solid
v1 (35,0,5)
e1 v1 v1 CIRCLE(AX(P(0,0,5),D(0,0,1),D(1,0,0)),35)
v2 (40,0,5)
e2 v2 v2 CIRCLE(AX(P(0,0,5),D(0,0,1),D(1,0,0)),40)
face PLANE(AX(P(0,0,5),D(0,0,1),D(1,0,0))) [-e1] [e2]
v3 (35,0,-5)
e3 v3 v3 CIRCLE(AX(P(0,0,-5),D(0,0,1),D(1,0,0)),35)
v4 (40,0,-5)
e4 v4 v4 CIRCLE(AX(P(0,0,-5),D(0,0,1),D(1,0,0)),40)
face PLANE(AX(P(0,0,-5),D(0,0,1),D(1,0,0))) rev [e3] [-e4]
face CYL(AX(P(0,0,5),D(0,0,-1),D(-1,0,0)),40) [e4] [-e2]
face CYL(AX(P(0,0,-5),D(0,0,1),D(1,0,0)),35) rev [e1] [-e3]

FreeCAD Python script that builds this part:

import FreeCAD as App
import Part
import Sketcher

doc = App.newDocument("Part")
body = doc.addObject("PartDesign::Body", "Body")

# Sketch on XY plane
sketch1 = body.newObject("Sketcher::SketchObject", "Sketch")
sketch1.AttachmentSupport = (doc.getObject("XY_Plane"), [""])
sketch1.MapMode = "FlatFace"
sketch1.addGeometry(Part.Circle(App.Vector(0, 0, 0), App.Vector(0, 0, 1), 40), False)
sketch1.addConstraint([
    Sketcher.Constraint("Coincident", 0, 3, -1, 1),
    Sketcher.Constraint("Diameter", 0, 80.0),
])
pad1 = body.newObject("PartDesign::Pad", "Pad")
pad1.Profile = sketch1
pad1.Length = 10
pad1.Midplane = True

# Sketch on XY plane
sketch2 = body.newObject("Sketcher::SketchObject", "Sketch001")
sketch2.AttachmentSupport = (doc.getObject("XY_Plane"), [""])
sketch2.MapMode = "FlatFace"
sketch2.AttachmentOffset = App.Placement(App.Vector(0, 0, 5), App.Rotation())
sketch2.addGeometry(Part.Circle(App.Vector(0, 0, 0), App.Vector(0, 0, 1), 35), False)
sketch2.addConstraint([
    Sketcher.Constraint("Coincident", 0, 3, -1, 1),
    Sketcher.Constraint("Diameter", 0, 70.0),
])
pocket1 = body.newObject("PartDesign::Pocket", "Pocket")
pocket1.Profile = sketch2
pocket1.Type = "ThroughAll"

doc.recompute()
